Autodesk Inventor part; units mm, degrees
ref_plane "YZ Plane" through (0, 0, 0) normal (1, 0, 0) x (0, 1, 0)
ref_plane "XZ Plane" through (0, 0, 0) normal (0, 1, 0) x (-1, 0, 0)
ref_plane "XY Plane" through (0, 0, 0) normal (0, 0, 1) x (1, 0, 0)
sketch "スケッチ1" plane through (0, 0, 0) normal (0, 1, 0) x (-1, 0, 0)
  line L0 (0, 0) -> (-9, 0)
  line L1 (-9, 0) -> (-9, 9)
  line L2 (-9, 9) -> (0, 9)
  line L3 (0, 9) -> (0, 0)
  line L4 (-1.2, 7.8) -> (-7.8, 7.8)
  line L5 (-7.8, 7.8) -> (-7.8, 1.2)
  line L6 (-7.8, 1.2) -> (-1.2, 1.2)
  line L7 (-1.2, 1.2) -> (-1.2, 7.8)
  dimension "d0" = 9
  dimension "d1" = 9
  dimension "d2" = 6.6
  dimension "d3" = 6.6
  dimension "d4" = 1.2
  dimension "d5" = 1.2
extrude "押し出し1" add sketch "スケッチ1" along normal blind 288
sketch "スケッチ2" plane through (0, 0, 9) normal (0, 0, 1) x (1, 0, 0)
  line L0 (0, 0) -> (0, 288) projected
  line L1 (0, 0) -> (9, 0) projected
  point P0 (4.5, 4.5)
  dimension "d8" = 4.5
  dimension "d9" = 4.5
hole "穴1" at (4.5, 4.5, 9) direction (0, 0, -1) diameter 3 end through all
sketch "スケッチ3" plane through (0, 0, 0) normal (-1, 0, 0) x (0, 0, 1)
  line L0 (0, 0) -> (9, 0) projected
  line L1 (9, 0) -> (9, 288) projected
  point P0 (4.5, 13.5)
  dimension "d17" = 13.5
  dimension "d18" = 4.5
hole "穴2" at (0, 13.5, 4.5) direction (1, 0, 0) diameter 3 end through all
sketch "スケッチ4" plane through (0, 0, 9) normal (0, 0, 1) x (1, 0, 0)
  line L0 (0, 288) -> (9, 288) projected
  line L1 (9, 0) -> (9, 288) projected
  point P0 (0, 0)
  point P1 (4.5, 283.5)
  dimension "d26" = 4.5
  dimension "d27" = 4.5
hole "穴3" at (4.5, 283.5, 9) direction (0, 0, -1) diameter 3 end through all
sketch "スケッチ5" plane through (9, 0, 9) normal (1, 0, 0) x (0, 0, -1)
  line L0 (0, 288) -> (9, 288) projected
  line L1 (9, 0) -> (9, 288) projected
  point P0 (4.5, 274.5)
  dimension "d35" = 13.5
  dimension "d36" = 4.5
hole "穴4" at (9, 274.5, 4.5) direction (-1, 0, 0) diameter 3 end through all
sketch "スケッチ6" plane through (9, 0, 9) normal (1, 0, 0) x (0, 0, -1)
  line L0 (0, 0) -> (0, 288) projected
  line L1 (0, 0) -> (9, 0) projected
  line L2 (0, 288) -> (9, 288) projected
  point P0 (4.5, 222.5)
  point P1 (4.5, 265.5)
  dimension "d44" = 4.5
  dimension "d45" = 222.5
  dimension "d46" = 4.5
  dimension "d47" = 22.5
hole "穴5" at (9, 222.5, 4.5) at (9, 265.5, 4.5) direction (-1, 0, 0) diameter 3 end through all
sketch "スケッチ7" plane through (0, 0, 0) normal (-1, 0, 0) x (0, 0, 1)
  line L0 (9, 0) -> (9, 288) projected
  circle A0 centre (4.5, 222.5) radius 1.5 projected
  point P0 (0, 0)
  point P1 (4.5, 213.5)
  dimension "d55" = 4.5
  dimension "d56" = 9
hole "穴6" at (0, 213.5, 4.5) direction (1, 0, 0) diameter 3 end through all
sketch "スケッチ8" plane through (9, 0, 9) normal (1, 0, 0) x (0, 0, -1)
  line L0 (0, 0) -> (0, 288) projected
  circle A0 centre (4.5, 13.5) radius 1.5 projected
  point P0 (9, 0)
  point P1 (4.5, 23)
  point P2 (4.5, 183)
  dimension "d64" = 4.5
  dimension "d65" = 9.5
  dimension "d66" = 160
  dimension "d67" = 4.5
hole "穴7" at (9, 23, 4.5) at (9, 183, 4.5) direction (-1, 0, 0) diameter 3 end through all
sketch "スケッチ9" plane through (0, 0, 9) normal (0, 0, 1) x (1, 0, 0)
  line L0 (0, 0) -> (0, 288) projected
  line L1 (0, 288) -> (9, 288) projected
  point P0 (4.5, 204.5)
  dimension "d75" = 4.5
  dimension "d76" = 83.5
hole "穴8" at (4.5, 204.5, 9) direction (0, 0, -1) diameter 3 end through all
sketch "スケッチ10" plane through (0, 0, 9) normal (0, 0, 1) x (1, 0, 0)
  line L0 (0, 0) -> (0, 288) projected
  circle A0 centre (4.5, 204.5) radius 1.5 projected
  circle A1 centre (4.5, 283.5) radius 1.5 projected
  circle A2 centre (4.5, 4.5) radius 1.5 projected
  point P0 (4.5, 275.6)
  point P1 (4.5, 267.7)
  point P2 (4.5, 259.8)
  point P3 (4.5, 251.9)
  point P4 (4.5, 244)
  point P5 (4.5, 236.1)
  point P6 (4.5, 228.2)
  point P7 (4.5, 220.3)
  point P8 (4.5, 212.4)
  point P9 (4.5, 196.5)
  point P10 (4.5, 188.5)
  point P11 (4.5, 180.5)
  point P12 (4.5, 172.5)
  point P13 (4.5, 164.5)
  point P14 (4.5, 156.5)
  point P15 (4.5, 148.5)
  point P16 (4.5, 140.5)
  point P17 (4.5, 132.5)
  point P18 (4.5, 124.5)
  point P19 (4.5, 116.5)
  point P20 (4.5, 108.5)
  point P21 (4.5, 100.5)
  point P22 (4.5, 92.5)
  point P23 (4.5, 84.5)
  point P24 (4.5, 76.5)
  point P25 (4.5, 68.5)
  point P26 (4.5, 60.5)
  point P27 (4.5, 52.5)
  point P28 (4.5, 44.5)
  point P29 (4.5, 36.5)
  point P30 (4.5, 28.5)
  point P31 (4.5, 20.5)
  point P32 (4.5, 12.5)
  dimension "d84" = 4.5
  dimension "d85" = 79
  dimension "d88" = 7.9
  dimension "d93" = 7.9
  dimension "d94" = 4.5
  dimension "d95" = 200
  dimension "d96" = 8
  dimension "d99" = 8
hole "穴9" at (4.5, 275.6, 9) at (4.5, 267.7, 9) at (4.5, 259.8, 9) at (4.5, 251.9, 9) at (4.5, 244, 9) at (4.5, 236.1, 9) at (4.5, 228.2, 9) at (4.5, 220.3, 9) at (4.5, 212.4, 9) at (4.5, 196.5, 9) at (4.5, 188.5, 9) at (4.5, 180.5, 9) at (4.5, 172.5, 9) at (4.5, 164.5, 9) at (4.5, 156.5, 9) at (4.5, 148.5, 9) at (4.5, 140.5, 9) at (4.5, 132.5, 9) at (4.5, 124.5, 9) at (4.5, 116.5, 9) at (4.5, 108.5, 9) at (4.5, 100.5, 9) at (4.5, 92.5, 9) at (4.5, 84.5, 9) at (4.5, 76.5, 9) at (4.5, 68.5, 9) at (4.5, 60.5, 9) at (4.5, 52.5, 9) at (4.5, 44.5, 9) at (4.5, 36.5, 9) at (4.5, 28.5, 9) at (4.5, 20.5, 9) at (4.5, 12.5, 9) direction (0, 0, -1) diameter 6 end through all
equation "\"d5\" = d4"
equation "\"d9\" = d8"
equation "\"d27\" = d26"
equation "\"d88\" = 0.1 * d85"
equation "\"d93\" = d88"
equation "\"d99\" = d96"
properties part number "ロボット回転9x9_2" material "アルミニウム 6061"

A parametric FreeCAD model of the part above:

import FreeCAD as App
import Part
import Sketcher


def add_polygon(sketch, points):
    """Adds a closed chain of lines whose ends are joined by coincident constraints."""
    first, n = sketch.GeometryCount, len(points)
    for a, b in zip(points, points[1:] + points[:1]):
        sketch.addGeometry(Part.LineSegment(App.Vector(*a, 0), App.Vector(*b, 0)), False)
    for i in range(n):
        sketch.addConstraint(Sketcher.Constraint("Coincident", first + i, 2, first + (i + 1) % n, 1))

doc = App.newDocument("Part")
params = doc.addObject("Spreadsheet::Sheet", "Params")
for row, (alias, value) in enumerate([
    ("sketch1_width", "9 mm"),
    ("sketch1_width2", "6.6 mm"),
    ("pad1_length", "288 mm"),
    ("sketch2_diameter", "3 mm"),
    ("hole_diameter", "3 mm"),
    ("sketch3_diameter", "3 mm"),
    ("hole2_diameter", "3 mm"),
    ("sketch4_diameter", "3 mm"),
    ("hole3_diameter", "3 mm"),
    ("sketch5_diameter", "3 mm"),
    ("hole4_diameter", "3 mm"),
    ("sketch6_diameter", "3 mm"),
    ("hole5_diameter", "3 mm"),
    ("sketch7_diameter", "3 mm"),
    ("hole6_diameter", "3 mm"),
    ("sketch8_diameter", "3 mm"),
    ("hole7_diameter", "3 mm"),
    ("sketch9_diameter", "3 mm"),
    ("hole8_diameter", "3 mm"),
    ("sketch10_diameter", "6 mm"),
    ("hole9_diameter", "6 mm"),
], start=1):
    params.set(f"A{row}", alias)
    params.set(f"B{row}", "=" + value)
    params.setAlias(f"B{row}", alias)

body = doc.addObject("PartDesign::Body", "Body")

# Sketch on XZ plane
sketch1 = body.newObject("Sketcher::SketchObject", "Sketch")
sketch1.AttachmentSupport = (doc.getObject("XZ_Plane"), [""])
sketch1.MapMode = "FlatFace"
add_polygon(sketch1, [(9, 0), (0, 0), (0, 9), (9, 9)])  # lines 0-3
add_polygon(sketch1, [(8, 8), (1, 8), (1, 1), (8, 1)])  # lines 4-7
sketch1.addConstraint([
    Sketcher.Constraint("Horizontal", 0),
    Sketcher.Constraint("Vertical", 1),
    Sketcher.Constraint("Horizontal", 2),
    Sketcher.Constraint("Vertical", 3),
    Sketcher.Constraint("Horizontal", 4),
    Sketcher.Constraint("Vertical", 5),
    Sketcher.Constraint("Horizontal", 6),
    Sketcher.Constraint("Vertical", 7),
    Sketcher.Constraint("Coincident", 0, 2, -1, 1),
    Sketcher.Constraint("Equal", 2, 1),
    Sketcher.Constraint("Equal", 6, 5),
    Sketcher.Constraint("DistanceX", 0, 2, 0, 1, 9.0),
    Sketcher.Constraint("DistanceX", 4, 2, 4, 1, 6.6),
    Sketcher.Constraint("DistanceX", -1, 1, 4, 2, 1.2),
    Sketcher.Constraint("DistanceY", -1, 1, 5, 2, 1.2),
])
sketch1.setExpression("Constraints[19]", "Params.sketch1_width")
sketch1.setExpression("Constraints[20]", "Params.sketch1_width2")
pad1 = body.newObject("PartDesign::Pad", "Pad")
pad1.Profile = sketch1
pad1.setExpression("Length", "Params.pad1_length")
pad1.Reversed = True

# Sketch on XY plane
sketch2 = body.newObject("Sketcher::SketchObject", "Sketch001")
sketch2.AttachmentSupport = (doc.getObject("XY_Plane"), [""])
sketch2.MapMode = "FlatFace"
sketch2.AttachmentOffset = App.Placement(App.Vector(0, 0, 9), App.Rotation())
sketch2.addGeometry(Part.Circle(App.Vector(4.5, 4.5, 0), App.Vector(0, 0, 1), 1.5), False)
sketch2.addConstraint([
    Sketcher.Constraint("Diameter", 0, 3.0),
    Sketcher.Constraint("DistanceX", -1, 1, 0, 3, 4.5),
    Sketcher.Constraint("DistanceY", -1, 1, 0, 3, 4.5),
])
sketch2.setExpression("Constraints[0]", "Params.sketch2_diameter")
doc.recompute()
hole = body.newObject("PartDesign::Hole", "Hole")
hole.Profile = sketch2
hole.ThreadType = "None"
hole.setExpression("Diameter", "Params.hole_diameter")
hole.DepthType = "ThroughAll"

# Sketch on YZ plane
sketch3 = body.newObject("Sketcher::SketchObject", "Sketch002")
sketch3.AttachmentSupport = (doc.getObject("YZ_Plane"), [""])
sketch3.MapMode = "FlatFace"
sketch3.addGeometry(Part.Circle(App.Vector(13.5, 4.5, 0), App.Vector(0, 0, 1), 1.5), False)
sketch3.addConstraint([
    Sketcher.Constraint("Diameter", 0, 3.0),
    Sketcher.Constraint("DistanceX", -1, 1, 0, 3, 13.5),
    Sketcher.Constraint("DistanceY", -1, 1, 0, 3, 4.5),
])
sketch3.setExpression("Constraints[0]", "Params.sketch3_diameter")
doc.recompute()
hole2 = body.newObject("PartDesign::Hole", "Hole001")
hole2.Profile = sketch3
hole2.ThreadType = "None"
hole2.setExpression("Diameter", "Params.hole2_diameter")
hole2.DepthType = "ThroughAll"
hole2.Reversed = True

# Sketch on XY plane
sketch4 = body.newObject("Sketcher::SketchObject", "Sketch003")
sketch4.AttachmentSupport = (doc.getObject("XY_Plane"), [""])
sketch4.MapMode = "FlatFace"
sketch4.AttachmentOffset = App.Placement(App.Vector(0, 0, 9), App.Rotation())
sketch4.addGeometry(Part.Circle(App.Vector(4.5, 283.5, 0), App.Vector(0, 0, 1), 1.5), False)
sketch4.addConstraint([
    Sketcher.Constraint("Diameter", 0, 3.0),
    Sketcher.Constraint("DistanceX", -1, 1, 0, 3, 4.5),
    Sketcher.Constraint("DistanceY", -1, 1, 0, 3, 283.5),
])
sketch4.setExpression("Constraints[0]", "Params.sketch4_diameter")
doc.recompute()
hole3 = body.newObject("PartDesign::Hole", "Hole002")
hole3.Profile = sketch4
hole3.ThreadType = "None"
hole3.setExpression("Diameter", "Params.hole3_diameter")
hole3.DepthType = "ThroughAll"

# Sketch on YZ plane
sketch5 = body.newObject("Sketcher::SketchObject", "Sketch004")
sketch5.AttachmentSupport = (doc.getObject("YZ_Plane"), [""])
sketch5.MapMode = "FlatFace"
sketch5.AttachmentOffset = App.Placement(App.Vector(0, 0, 9), App.Rotation())
sketch5.addGeometry(Part.Circle(App.Vector(274.5, 4.5, 0), App.Vector(0, 0, 1), 1.5), False)
sketch5.addConstraint([
    Sketcher.Constraint("Diameter", 0, 3.0),
    Sketcher.Constraint("DistanceX", -1, 1, 0, 3, 274.5),
    Sketcher.Constraint("DistanceY", -1, 1, 0, 3, 4.5),
])
sketch5.setExpression("Constraints[0]", "Params.sketch5_diameter")
doc.recompute()
hole4 = body.newObject("PartDesign::Hole", "Hole003")
hole4.Profile = sketch5
hole4.ThreadType = "None"
hole4.setExpression("Diameter", "Params.hole4_diameter")
hole4.DepthType = "ThroughAll"

# Sketch on YZ plane
sketch6 = body.newObject("Sketcher::SketchObject", "Sketch005")
sketch6.AttachmentSupport = (doc.getObject("YZ_Plane"), [""])
sketch6.MapMode = "FlatFace"
sketch6.AttachmentOffset = App.Placement(App.Vector(0, 0, 9), App.Rotation())
sketch6.addGeometry([
    Part.Circle(App.Vector(222.5, 4.5, 0), App.Vector(0, 0, 1), 1.5),
    Part.Circle(App.Vector(265.5, 4.5, 0), App.Vector(0, 0, 1), 1.5),
], False)
sketch6.addConstraint([
    Sketcher.Constraint("Equal", 0, 1),
    Sketcher.Constraint("Horizontal", 0, 3, 1, 3),
    Sketcher.Constraint("Diameter", 0, 3.0),
    Sketcher.Constraint("DistanceX", 0, 3, 1, 3, 43.0),
    Sketcher.Constraint("DistanceX", -1, 1, 0, 3, 222.5),
    Sketcher.Constraint("DistanceY", -1, 1, 0, 3, 4.5),
])
sketch6.setExpression("Constraints[2]", "Params.sketch6_diameter")
doc.recompute()
hole5 = body.newObject("PartDesign::Hole", "Hole004")
hole5.Profile = sketch6
hole5.ThreadType = "None"
hole5.setExpression("Diameter", "Params.hole5_diameter")
hole5.DepthType = "ThroughAll"

# Sketch on YZ plane
sketch7 = body.newObject("Sketcher::SketchObject", "Sketch006")
sketch7.AttachmentSupport = (doc.getObject("YZ_Plane"), [""])
sketch7.MapMode = "FlatFace"
sketch7.addGeometry(Part.Circle(App.Vector(213.5, 4.5, 0), App.Vector(0, 0, 1), 1.5), False)
sketch7.addConstraint([
    Sketcher.Constraint("Diameter", 0, 3.0),
    Sketcher.Constraint("DistanceX", -1, 1, 0, 3, 213.5),
    Sketcher.Constraint("DistanceY", -1, 1, 0, 3, 4.5),
])
sketch7.setExpression("Constraints[0]", "Params.sketch7_diameter")
doc.recompute()
hole6 = body.newObject("PartDesign::Hole", "Hole005")
hole6.Profile = sketch7
hole6.ThreadType = "None"
hole6.setExpression("Diameter", "Params.hole6_diameter")
hole6.DepthType = "ThroughAll"
hole6.Reversed = True

# Sketch on YZ plane
sketch8 = body.newObject("Sketcher::SketchObject", "Sketch007")
sketch8.AttachmentSupport = (doc.getObject("YZ_Plane"), [""])
sketch8.MapMode = "FlatFace"
sketch8.AttachmentOffset = App.Placement(App.Vector(0, 0, 9), App.Rotation())
sketch8.addGeometry([
    Part.Circle(App.Vector(23, 4.5, 0), App.Vector(0, 0, 1), 1.5),
    Part.Circle(App.Vector(183, 4.5, 0), App.Vector(0, 0, 1), 1.5),
], False)
sketch8.addConstraint([
    Sketcher.Constraint("Equal", 0, 1),
    Sketcher.Constraint("Horizontal", 0, 3, 1, 3),
    Sketcher.Constraint("Diameter", 0, 3.0),
    Sketcher.Constraint("DistanceX", -1, 1, 0, 3, 23.0),
    Sketcher.Constraint("DistanceX", -1, 1, 1, 3, 183.0),
    Sketcher.Constraint("DistanceY", -1, 1, 0, 3, 4.5),
])
sketch8.setExpression("Constraints[2]", "Params.sketch8_diameter")
doc.recompute()
hole7 = body.newObject("PartDesign::Hole", "Hole006")
hole7.Profile = sketch8
hole7.ThreadType = "None"
hole7.setExpression("Diameter", "Params.hole7_diameter")
hole7.DepthType = "ThroughAll"

# Sketch on XY plane
sketch9 = body.newObject("Sketcher::SketchObject", "Sketch008")
sketch9.AttachmentSupport = (doc.getObject("XY_Plane"), [""])
sketch9.MapMode = "FlatFace"
sketch9.AttachmentOffset = App.Placement(App.Vector(0, 0, 9), App.Rotation())
sketch9.addGeometry(Part.Circle(App.Vector(4.5, 204.5, 0), App.Vector(0, 0, 1), 1.5), False)
sketch9.addConstraint([
    Sketcher.Constraint("Diameter", 0, 3.0),
    Sketcher.Constraint("DistanceX", -1, 1, 0, 3, 4.5),
    Sketcher.Constraint("DistanceY", -1, 1, 0, 3, 204.5),
])
sketch9.setExpression("Constraints[0]", "Params.sketch9_diameter")
doc.recompute()
hole8 = body.newObject("PartDesign::Hole", "Hole007")
hole8.Profile = sketch9
hole8.ThreadType = "None"
hole8.setExpression("Diameter", "Params.hole8_diameter")
hole8.DepthType = "ThroughAll"

# Sketch on XY plane
sketch10 = body.newObject("Sketcher::SketchObject", "Sketch009")
sketch10.AttachmentSupport = (doc.getObject("XY_Plane"), [""])
sketch10.MapMode = "FlatFace"
sketch10.AttachmentOffset = App.Placement(App.Vector(0, 0, 9), App.Rotation())
sketch10.addGeometry([
    Part.Circle(App.Vector(4.5, 275.6, 0), App.Vector(0, 0, 1), 3),  # 0
    Part.Circle(App.Vector(4.5, 267.7, 0), App.Vector(0, 0, 1), 3),  # 1
    Part.Circle(App.Vector(4.5, 259.8, 0), App.Vector(0, 0, 1), 3),  # 2
    Part.Circle(App.Vector(4.5, 251.9, 0), App.Vector(0, 0, 1), 3),  # 3
    Part.Circle(App.Vector(4.5, 244, 0), App.Vector(0, 0, 1), 3),  # 4
    Part.Circle(App.Vector(4.5, 236.1, 0), App.Vector(0, 0, 1), 3),  # 5
    Part.Circle(App.Vector(4.5, 228.2, 0), App.Vector(0, 0, 1), 3),  # 6
    Part.Circle(App.Vector(4.5, 220.3, 0), App.Vector(0, 0, 1), 3),  # 7
    Part.Circle(App.Vector(4.5, 212.4, 0), App.Vector(0, 0, 1), 3),  # 8
    Part.Circle(App.Vector(4.5, 196.5, 0), App.Vector(0, 0, 1), 3),  # 9
    Part.Circle(App.Vector(4.5, 188.5, 0), App.Vector(0, 0, 1), 3),  # 10
    Part.Circle(App.Vector(4.5, 180.5, 0), App.Vector(0, 0, 1), 3),  # 11
    Part.Circle(App.Vector(4.5, 172.5, 0), App.Vector(0, 0, 1), 3),  # 12
    Part.Circle(App.Vector(4.5, 164.5, 0), App.Vector(0, 0, 1), 3),  # 13
    Part.Circle(App.Vector(4.5, 156.5, 0), App.Vector(0, 0, 1), 3),  # 14
    Part.Circle(App.Vector(4.5, 148.5, 0), App.Vector(0, 0, 1), 3),  # 15
    Part.Circle(App.Vector(4.5, 140.5, 0), App.Vector(0, 0, 1), 3),  # 16
    Part.Circle(App.Vector(4.5, 132.5, 0), App.Vector(0, 0, 1), 3),  # 17
    Part.Circle(App.Vector(4.5, 124.5, 0), App.Vector(0, 0, 1), 3),  # 18
    Part.Circle(App.Vector(4.5, 116.5, 0), App.Vector(0, 0, 1), 3),  # 19
    Part.Circle(App.Vector(4.5, 108.5, 0), App.Vector(0, 0, 1), 3),  # 20
    Part.Circle(App.Vector(4.5, 100.5, 0), App.Vector(0, 0, 1), 3),  # 21
    Part.Circle(App.Vector(4.5, 92.5, 0), App.Vector(0, 0, 1), 3),  # 22
    Part.Circle(App.Vector(4.5, 84.5, 0), App.Vector(0, 0, 1), 3),  # 23
    Part.Circle(App.Vector(4.5, 76.5, 0), App.Vector(0, 0, 1), 3),  # 24
    Part.Circle(App.Vector(4.5, 68.5, 0), App.Vector(0, 0, 1), 3),  # 25
    Part.Circle(App.Vector(4.5, 60.5, 0), App.Vector(0, 0, 1), 3),  # 26
    Part.Circle(App.Vector(4.5, 52.5, 0), App.Vector(0, 0, 1), 3),  # 27
    Part.Circle(App.Vector(4.5, 44.5, 0), App.Vector(0, 0, 1), 3),  # 28
    Part.Circle(App.Vector(4.5, 36.5, 0), App.Vector(0, 0, 1), 3),  # 29
    Part.Circle(App.Vector(4.5, 28.5, 0), App.Vector(0, 0, 1), 3),  # 30
    Part.Circle(App.Vector(4.5, 20.5, 0), App.Vector(0, 0, 1), 3),  # 31
    Part.Circle(App.Vector(4.5, 12.5, 0), App.Vector(0, 0, 1), 3),  # 32
], False)
sketch10.addConstraint([
    Sketcher.Constraint("Equal", 0, 1),
    Sketcher.Constraint("Equal", 1, 2),
    Sketcher.Constraint("Equal", 2, 3),
    Sketcher.Constraint("Equal", 3, 4),
    Sketcher.Constraint("Equal", 4, 5),
    Sketcher.Constraint("Equal", 5, 6),
    Sketcher.Constraint("Equal", 6, 7),
    Sketcher.Constraint("Equal", 7, 8),
    Sketcher.Constraint("Equal", 8, 9),
    Sketcher.Constraint("Equal", 9, 10),
    Sketcher.Constraint("Equal", 10, 11),
    Sketcher.Constraint("Equal", 11, 12),
    Sketcher.Constraint("Equal", 12, 13),
    Sketcher.Constraint("Equal", 13, 14),
    Sketcher.Constraint("Equal", 14, 15),
    Sketcher.Constraint("Equal", 15, 16),
    Sketcher.Constraint("Equal", 16, 17),
    Sketcher.Constraint("Equal", 17, 18),
    Sketcher.Constraint("Equal", 18, 19),
    Sketcher.Constraint("Equal", 19, 20),
    Sketcher.Constraint("Equal", 20, 21),
    Sketcher.Constraint("Equal", 21, 22),
    Sketcher.Constraint("Equal", 22, 23),
    Sketcher.Constraint("Equal", 23, 24),
    Sketcher.Constraint("Equal", 24, 25),
    Sketcher.Constraint("Equal", 25, 26),
    Sketcher.Constraint("Equal", 26, 27),
    Sketcher.Constraint("Equal", 27, 28),
    Sketcher.Constraint("Equal", 28, 29),
    Sketcher.Constraint("Equal", 29, 30),
    Sketcher.Constraint("Equal", 30, 31),
    Sketcher.Constraint("Equal", 31, 32),
    Sketcher.Constraint("Vertical", 0, 3, 1, 3),
    Sketcher.Constraint("Vertical", 1, 3, 2, 3),
    Sketcher.Constraint("Vertical", 2, 3, 3, 3),
    Sketcher.Constraint("Vertical", 3, 3, 4, 3),
    Sketcher.Constraint("Vertical", 4, 3, 5, 3),
    Sketcher.Constraint("Vertical", 5, 3, 6, 3),
    Sketcher.Constraint("Vertical", 6, 3, 7, 3),
    Sketcher.Constraint("Vertical", 7, 3, 8, 3),
    Sketcher.Constraint("Vertical", 8, 3, 9, 3),
    Sketcher.Constraint("Vertical", 9, 3, 10, 3),
    Sketcher.Constraint("Vertical", 10, 3, 11, 3),
    Sketcher.Constraint("Vertical", 11, 3, 12, 3),
    Sketcher.Constraint("Vertical", 12, 3, 13, 3),
    Sketcher.Constraint("Vertical", 13, 3, 14, 3),
    Sketcher.Constraint("Vertical", 14, 3, 15, 3),
    Sketcher.Constraint("Vertical", 15, 3, 16, 3),
    Sketcher.Constraint("Vertical", 16, 3, 17, 3),
    Sketcher.Constraint("Vertical", 17, 3, 18, 3),
    Sketcher.Constraint("Vertical", 18, 3, 19, 3),
    Sketcher.Constraint("Vertical", 19, 3, 20, 3),
    Sketcher.Constraint("Vertical", 20, 3, 21, 3),
    Sketcher.Constraint("Vertical", 21, 3, 22, 3),
    Sketcher.Constraint("Vertical", 22, 3, 23, 3),
    Sketcher.Constraint("Vertical", 23, 3, 24, 3),
    Sketcher.Constraint("Vertical", 24, 3, 25, 3),
    Sketcher.Constraint("Vertical", 25, 3, 26, 3),
    Sketcher.Constraint("Vertical", 26, 3, 27, 3),
    Sketcher.Constraint("Vertical", 27, 3, 28, 3),
    Sketcher.Constraint("Vertical", 28, 3, 29, 3),
    Sketcher.Constraint("Vertical", 29, 3, 30, 3),
    Sketcher.Constraint("Vertical", 30, 3, 31, 3),
    Sketcher.Constraint("Vertical", 31, 3, 32, 3),
    Sketcher.Constraint("Diameter", 0, 6.0),
    Sketcher.Constraint("DistanceY", -1, 1, 4, 3, 244.0),
    Sketcher.Constraint("DistanceY", 10, 3, 9, 3, 8.0),
    Sketcher.Constraint("DistanceY", 11, 3, 10, 3, 8.0),
    Sketcher.Constraint("DistanceY", 12, 3, 11, 3, 8.0),
    Sketcher.Constraint("DistanceY", 13, 3, 12, 3, 8.0),
    Sketcher.Constraint("DistanceY", 14, 3, 13, 3, 8.0),
    Sketcher.Constraint("DistanceY", 15, 3, 14, 3, 8.0),
    Sketcher.Constraint("DistanceY", 16, 3, 15, 3, 8.0),
    Sketcher.Constraint("DistanceY", 17, 3, 16, 3, 8.0),
    Sketcher.Constraint("DistanceY", 18, 3, 17, 3, 8.0),
    Sketcher.Constraint("DistanceY", 19, 3, 18, 3, 8.0),
    Sketcher.Constraint("DistanceY", 20, 3, 19, 3, 8.0),
    Sketcher.Constraint("DistanceY", 21, 3, 20, 3, 8.0),
    Sketcher.Constraint("DistanceY", 22, 3, 21, 3, 8.0),
    Sketcher.Constraint("DistanceY", 23, 3, 22, 3, 8.0),
    Sketcher.Constraint("DistanceY", 24, 3, 23, 3, 8.0),
    Sketcher.Constraint("DistanceY", 25, 3, 24, 3, 8.0),
    Sketcher.Constraint("DistanceY", 26, 3, 25, 3, 8.0),
    Sketcher.Constraint("DistanceY", 27, 3, 26, 3, 8.0),
    Sketcher.Constraint("DistanceY", 28, 3, 27, 3, 8.0),
    Sketcher.Constraint("DistanceY", 29, 3, 28, 3, 8.0),
    Sketcher.Constraint("DistanceY", 30, 3, 29, 3, 8.0),
    Sketcher.Constraint("DistanceY", 31, 3, 30, 3, 8.0),
    Sketcher.Constraint("DistanceY", 32, 3, 31, 3, 8.0),
    Sketcher.Constraint("DistanceX", -1, 1, 0, 3, 4.5),
    Sketcher.Constraint("DistanceY", -1, 1, 0, 3, 275.6),
    Sketcher.Constraint("DistanceY", -1, 1, 1, 3, 267.7),
    Sketcher.Constraint("DistanceY", -1, 1, 2, 3, 259.8),
    Sketcher.Constraint("DistanceY", -1, 1, 3, 3, 251.9),
    Sketcher.Constraint("DistanceY", -1, 1, 5, 3, 236.1),
    Sketcher.Constraint("DistanceY", -1, 1, 6, 3, 228.2),
    Sketcher.Constraint("DistanceY", -1, 1, 7, 3, 220.3),
    Sketcher.Constraint("DistanceY", -1, 1, 8, 3, 212.4),
    Sketcher.Constraint("DistanceY", -1, 1, 9, 3, 196.5),
])
sketch10.setExpression("Constraints[64]", "Params.sketch10_diameter")
doc.recompute()
hole9 = body.newObject("PartDesign::Hole", "Hole008")
hole9.Profile = sketch10
hole9.ThreadType = "None"
hole9.setExpression("Diameter", "Params.hole9_diameter")
hole9.DepthType = "ThroughAll"

doc.recompute()
